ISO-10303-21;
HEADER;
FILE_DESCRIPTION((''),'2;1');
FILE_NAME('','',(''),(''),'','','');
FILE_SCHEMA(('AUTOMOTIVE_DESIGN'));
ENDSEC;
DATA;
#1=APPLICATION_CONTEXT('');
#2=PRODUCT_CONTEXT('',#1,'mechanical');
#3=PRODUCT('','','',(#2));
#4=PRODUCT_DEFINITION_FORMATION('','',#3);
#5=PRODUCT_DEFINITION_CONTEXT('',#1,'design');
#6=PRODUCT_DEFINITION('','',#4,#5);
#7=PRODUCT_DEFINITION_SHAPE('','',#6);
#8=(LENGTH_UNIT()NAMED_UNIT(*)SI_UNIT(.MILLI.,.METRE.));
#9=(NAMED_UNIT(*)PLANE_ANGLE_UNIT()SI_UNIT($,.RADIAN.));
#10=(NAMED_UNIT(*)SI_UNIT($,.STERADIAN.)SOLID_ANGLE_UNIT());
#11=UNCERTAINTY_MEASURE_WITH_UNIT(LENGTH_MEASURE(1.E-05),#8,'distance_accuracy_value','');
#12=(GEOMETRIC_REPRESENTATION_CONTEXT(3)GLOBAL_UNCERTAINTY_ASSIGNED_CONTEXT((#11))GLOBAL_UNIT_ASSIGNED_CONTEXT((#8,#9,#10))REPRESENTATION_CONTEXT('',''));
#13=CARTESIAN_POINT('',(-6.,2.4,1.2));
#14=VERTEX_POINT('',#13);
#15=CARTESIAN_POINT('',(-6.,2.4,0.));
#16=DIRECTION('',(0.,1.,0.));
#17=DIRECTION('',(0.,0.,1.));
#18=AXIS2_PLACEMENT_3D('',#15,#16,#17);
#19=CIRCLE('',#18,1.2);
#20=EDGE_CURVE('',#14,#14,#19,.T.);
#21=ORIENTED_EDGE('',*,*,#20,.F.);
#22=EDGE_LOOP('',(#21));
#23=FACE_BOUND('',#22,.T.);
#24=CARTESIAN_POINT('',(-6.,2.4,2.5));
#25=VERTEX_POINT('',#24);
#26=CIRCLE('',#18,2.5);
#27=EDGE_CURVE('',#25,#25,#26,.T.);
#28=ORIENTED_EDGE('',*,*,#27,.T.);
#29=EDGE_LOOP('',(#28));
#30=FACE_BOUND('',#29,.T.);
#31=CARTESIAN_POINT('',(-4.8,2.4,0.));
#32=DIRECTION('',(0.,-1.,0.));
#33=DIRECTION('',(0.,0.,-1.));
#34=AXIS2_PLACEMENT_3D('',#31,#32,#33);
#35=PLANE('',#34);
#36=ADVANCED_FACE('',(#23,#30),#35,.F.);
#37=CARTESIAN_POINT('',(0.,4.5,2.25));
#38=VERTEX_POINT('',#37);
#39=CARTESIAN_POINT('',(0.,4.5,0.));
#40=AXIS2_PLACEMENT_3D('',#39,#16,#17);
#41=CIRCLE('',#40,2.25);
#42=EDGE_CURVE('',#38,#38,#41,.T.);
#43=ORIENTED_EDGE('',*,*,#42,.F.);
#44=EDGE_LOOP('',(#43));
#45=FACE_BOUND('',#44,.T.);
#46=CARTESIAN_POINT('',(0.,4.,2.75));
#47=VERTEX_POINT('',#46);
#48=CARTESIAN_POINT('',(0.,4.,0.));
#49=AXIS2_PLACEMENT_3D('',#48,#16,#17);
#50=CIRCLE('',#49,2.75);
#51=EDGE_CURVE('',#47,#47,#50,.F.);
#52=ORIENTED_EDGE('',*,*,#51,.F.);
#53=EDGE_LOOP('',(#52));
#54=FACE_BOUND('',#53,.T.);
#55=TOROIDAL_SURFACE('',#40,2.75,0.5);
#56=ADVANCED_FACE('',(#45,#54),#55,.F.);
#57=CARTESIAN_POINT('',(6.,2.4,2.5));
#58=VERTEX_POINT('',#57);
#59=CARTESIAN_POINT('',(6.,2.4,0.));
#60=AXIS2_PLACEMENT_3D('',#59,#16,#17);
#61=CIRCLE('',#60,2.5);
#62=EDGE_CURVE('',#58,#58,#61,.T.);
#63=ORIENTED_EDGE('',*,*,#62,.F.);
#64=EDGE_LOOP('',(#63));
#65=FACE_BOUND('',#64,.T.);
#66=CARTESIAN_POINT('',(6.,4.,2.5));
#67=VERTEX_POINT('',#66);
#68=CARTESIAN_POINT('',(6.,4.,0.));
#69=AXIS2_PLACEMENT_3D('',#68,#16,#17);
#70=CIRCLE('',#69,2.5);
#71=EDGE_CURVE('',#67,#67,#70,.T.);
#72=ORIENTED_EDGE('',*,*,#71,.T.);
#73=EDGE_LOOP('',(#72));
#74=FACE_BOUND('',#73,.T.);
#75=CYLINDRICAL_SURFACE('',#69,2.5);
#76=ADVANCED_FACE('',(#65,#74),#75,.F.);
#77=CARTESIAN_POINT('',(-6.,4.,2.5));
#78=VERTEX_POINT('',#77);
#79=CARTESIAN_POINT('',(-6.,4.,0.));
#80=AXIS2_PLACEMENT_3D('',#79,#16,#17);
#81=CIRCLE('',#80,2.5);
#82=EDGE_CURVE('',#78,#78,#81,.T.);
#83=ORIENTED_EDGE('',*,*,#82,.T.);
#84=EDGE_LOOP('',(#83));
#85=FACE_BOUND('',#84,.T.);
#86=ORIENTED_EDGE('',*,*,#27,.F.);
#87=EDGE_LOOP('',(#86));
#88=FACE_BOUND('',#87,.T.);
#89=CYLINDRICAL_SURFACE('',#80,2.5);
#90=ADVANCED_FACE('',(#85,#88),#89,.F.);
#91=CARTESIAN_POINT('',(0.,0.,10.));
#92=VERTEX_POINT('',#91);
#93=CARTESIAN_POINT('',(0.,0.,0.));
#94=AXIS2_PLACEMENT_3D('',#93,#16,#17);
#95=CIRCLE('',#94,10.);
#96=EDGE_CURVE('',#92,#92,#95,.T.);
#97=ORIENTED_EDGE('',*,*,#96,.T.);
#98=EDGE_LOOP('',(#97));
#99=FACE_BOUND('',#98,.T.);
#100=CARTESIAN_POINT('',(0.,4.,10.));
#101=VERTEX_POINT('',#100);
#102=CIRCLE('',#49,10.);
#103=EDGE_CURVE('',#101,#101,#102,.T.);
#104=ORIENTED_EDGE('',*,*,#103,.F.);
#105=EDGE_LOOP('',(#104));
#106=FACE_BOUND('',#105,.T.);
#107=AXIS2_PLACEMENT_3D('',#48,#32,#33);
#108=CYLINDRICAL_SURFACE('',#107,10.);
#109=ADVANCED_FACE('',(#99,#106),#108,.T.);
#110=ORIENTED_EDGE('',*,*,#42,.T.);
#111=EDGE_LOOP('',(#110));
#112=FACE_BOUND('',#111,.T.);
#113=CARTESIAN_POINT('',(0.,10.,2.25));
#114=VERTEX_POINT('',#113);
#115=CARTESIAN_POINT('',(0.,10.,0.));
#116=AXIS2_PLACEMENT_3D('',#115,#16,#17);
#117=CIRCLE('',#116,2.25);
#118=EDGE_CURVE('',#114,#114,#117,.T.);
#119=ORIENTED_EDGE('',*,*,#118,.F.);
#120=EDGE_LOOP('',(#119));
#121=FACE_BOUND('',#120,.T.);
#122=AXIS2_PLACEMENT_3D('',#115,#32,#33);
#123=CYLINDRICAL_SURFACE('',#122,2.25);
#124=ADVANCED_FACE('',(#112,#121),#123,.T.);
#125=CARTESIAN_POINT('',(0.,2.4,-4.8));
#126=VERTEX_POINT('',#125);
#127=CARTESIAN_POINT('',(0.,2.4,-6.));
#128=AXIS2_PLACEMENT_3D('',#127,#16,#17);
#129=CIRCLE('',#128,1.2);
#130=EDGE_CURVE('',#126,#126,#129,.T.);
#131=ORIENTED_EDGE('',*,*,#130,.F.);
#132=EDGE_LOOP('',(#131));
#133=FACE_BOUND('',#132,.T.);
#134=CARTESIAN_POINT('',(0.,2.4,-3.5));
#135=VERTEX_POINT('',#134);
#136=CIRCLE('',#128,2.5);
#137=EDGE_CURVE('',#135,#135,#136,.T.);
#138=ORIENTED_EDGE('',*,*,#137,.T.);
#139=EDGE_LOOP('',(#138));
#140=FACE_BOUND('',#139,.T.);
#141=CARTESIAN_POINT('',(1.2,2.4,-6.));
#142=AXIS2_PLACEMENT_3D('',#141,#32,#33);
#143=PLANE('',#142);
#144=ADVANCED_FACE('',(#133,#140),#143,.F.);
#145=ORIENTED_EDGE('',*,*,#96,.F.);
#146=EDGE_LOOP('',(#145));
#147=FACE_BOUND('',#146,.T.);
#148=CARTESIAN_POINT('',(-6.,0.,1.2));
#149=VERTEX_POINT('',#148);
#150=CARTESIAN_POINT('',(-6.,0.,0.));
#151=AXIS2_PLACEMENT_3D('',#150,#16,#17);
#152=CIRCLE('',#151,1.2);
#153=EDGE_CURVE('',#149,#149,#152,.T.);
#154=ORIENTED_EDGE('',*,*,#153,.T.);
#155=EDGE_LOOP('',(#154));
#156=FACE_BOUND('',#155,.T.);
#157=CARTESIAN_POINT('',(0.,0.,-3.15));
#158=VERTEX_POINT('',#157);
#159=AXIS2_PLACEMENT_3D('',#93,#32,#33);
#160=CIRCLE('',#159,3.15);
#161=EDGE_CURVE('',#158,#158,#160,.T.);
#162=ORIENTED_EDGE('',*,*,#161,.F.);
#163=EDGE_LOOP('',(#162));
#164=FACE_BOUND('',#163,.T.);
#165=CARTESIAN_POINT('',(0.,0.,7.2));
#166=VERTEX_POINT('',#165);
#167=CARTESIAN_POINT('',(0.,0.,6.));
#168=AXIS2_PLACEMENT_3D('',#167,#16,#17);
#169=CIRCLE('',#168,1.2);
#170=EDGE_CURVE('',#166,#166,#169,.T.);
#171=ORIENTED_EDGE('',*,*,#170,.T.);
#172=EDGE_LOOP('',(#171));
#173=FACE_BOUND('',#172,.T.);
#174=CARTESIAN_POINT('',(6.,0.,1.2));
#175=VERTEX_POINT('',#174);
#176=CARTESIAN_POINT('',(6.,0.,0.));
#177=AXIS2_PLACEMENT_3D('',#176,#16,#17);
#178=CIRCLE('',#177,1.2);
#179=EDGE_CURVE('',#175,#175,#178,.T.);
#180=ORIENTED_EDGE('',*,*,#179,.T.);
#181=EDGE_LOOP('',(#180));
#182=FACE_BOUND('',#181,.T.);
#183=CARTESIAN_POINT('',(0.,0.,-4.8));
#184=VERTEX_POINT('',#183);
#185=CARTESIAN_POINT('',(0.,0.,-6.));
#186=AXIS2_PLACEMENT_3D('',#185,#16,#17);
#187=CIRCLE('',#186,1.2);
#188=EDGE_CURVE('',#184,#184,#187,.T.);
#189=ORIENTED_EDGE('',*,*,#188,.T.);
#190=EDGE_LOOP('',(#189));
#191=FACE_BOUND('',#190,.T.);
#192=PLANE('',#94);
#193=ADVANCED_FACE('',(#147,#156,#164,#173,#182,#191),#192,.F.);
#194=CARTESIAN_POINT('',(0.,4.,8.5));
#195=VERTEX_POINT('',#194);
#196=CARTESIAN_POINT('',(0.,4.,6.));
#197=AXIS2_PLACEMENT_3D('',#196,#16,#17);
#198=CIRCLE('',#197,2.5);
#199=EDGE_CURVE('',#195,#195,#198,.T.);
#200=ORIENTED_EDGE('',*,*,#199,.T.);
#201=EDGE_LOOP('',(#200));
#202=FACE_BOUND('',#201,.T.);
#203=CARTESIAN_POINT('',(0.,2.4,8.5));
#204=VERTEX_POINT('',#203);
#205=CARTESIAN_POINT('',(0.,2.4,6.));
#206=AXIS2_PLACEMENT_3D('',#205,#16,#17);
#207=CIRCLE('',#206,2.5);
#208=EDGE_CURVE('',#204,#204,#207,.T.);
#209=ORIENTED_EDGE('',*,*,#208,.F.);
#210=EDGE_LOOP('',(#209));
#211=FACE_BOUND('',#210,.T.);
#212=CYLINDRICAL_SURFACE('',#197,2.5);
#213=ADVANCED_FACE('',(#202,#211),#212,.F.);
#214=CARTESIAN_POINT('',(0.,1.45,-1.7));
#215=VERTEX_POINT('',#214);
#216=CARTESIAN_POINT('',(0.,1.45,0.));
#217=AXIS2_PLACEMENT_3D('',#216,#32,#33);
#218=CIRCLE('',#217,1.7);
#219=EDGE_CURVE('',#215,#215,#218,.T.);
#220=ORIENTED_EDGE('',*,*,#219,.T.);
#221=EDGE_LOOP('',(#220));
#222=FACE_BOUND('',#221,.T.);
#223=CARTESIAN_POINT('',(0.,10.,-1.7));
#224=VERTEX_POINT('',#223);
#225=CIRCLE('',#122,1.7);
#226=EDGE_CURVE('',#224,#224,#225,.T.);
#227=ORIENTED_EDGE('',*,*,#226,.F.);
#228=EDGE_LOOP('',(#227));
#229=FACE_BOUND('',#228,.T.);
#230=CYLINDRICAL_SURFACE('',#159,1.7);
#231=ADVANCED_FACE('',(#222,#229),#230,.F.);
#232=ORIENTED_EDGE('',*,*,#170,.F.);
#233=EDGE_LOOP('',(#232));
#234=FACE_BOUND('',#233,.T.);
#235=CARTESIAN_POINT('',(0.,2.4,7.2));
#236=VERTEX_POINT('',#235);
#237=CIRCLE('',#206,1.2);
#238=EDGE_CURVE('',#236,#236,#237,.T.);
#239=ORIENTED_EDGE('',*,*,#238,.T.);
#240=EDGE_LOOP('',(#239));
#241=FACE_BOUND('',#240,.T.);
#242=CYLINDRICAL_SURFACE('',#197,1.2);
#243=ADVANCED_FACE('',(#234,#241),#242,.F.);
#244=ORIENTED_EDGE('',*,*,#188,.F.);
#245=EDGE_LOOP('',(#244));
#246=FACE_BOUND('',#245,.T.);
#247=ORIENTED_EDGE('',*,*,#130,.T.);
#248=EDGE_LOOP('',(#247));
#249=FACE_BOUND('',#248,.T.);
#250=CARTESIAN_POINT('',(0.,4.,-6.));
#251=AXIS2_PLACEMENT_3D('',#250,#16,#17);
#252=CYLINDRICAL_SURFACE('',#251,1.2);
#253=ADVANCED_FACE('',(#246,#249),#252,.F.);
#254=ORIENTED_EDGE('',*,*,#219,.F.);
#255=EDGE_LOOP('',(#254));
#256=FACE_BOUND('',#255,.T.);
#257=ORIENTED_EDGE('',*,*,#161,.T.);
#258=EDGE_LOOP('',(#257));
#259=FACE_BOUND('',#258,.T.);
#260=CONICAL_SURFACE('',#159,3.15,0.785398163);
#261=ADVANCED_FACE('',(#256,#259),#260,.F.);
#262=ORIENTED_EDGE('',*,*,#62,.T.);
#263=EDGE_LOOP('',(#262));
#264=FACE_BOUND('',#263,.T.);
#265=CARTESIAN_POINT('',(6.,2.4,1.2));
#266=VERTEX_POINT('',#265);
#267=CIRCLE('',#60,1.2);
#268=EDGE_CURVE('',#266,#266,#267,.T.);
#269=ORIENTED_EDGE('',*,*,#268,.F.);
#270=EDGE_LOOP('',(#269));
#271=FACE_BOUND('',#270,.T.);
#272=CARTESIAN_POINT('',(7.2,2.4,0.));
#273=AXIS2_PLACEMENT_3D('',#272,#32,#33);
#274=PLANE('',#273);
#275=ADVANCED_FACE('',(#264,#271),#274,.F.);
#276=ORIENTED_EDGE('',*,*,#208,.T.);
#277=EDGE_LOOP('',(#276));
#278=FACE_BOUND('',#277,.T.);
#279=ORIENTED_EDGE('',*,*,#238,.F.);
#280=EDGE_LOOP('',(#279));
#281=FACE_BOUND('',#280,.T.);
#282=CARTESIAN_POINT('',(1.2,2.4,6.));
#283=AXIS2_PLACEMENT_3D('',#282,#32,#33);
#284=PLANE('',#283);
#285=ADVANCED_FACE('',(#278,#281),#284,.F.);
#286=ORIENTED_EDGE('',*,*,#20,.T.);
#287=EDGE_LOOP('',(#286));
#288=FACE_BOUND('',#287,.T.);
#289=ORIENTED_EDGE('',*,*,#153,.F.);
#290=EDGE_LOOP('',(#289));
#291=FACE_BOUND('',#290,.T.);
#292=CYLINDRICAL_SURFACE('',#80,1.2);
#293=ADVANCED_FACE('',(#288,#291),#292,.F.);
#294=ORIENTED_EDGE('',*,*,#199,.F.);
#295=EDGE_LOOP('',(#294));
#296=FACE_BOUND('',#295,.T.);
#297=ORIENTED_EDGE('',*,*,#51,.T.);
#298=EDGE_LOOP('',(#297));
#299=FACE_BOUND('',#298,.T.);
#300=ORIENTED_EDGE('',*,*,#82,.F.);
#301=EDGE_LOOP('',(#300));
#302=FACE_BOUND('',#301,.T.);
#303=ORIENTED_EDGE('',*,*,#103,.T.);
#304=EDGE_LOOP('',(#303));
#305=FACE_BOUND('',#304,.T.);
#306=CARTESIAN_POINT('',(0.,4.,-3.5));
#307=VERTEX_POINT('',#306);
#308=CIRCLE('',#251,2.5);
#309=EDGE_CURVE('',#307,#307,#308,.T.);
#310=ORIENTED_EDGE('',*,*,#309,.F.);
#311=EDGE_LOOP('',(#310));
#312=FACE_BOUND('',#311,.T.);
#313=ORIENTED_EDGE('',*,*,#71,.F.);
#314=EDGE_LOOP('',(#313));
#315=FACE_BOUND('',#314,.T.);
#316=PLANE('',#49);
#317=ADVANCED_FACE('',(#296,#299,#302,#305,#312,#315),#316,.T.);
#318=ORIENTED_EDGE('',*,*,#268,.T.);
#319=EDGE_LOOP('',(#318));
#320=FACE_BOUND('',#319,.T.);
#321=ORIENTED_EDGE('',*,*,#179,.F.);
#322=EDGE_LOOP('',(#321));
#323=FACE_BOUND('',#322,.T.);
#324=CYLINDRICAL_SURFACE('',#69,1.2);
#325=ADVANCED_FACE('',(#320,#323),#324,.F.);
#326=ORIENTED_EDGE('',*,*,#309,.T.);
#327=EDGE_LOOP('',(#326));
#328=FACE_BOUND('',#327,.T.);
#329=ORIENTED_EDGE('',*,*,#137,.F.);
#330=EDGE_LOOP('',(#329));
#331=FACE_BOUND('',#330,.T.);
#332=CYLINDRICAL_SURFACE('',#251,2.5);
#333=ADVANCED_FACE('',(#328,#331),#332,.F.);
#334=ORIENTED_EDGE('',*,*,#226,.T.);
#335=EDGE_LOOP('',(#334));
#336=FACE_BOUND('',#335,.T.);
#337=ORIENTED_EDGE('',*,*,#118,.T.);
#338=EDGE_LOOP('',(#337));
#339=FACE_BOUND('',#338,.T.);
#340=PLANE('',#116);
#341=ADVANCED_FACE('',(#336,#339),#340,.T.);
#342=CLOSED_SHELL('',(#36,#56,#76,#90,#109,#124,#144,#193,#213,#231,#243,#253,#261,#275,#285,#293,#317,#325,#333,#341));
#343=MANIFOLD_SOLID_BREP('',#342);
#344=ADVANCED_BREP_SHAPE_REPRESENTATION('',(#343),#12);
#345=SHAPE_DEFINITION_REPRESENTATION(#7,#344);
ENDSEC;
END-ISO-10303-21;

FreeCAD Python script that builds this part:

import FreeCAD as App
import Part
import Sketcher
from FreeCAD import Vector
Q = App.Units.Quantity


def edges_at(feature, points):
    """Names of the edges that pass closest to the given points."""
    edges = feature.Shape.Edges
    near = lambda p: min(range(len(edges)), key=lambda i: edges[i].distToShape(Part.Vertex(*p))[0])
    return sorted({f"Edge{near(p) + 1}" for p in points})

doc = App.newDocument("Part")
body = doc.addObject("PartDesign::Body", "Body")

# Sketch on XZ plane
sketch1 = body.newObject("Sketcher::SketchObject", "Sketch")
sketch1.AttachmentSupport = (doc.getObject("XZ_Plane"), [""])
sketch1.MapMode = "FlatFace"
sketch1.addGeometry(Part.Circle(Vector(0, 0, 0), Vector(0, 0, 1), 10), False)
sketch1.addConstraint([
    Sketcher.Constraint("Coincident", 0, 3, -1, 1),
    Sketcher.Constraint("Diameter", 0, Q("20 mm")),
])
pad1 = body.newObject("PartDesign::Pad", "Pad")
pad1.Profile = sketch1
pad1.Length = 4
pad1.Reversed = True

# Sketch on XZ plane
sketch2 = body.newObject("Sketcher::SketchObject", "Sketch001")
sketch2.AttachmentSupport = (doc.getObject("XZ_Plane"), [""])
sketch2.MapMode = "FlatFace"
sketch2.AttachmentOffset = App.Placement(Vector(0, 0, -4), App.Rotation())
sketch2.addGeometry(Part.Circle(Vector(6, 0, 0), Vector(0, 0, 1), 1.2), False)
sketch2.addConstraint([
    Sketcher.Constraint("PointOnObject", 0, 3, -1),
    Sketcher.Constraint("Diameter", 0, Q("2.4 mm")),
    Sketcher.Constraint("DistanceX", -1, 1, 0, 3, Q("6 mm")),
])
doc.recompute()
hole = body.newObject("PartDesign::Hole", "Hole")
hole.Profile = sketch2
hole.ThreadType = "None"
hole.Diameter = 2.4
hole.DepthType = "ThroughAll"
hole.HoleCutType = "Counterbore"
hole.HoleCutDiameter = 5
hole.HoleCutDepth = 1.6
hole.Reversed = True

# Sketch on XZ plane
sketch3 = body.newObject("Sketcher::SketchObject", "Sketch002")
sketch3.AttachmentSupport = (doc.getObject("XZ_Plane"), [""])
sketch3.MapMode = "FlatFace"
sketch3.AttachmentOffset = App.Placement(Vector(0, 0, -4), App.Rotation())
sketch3.addGeometry(Part.Circle(Vector(0, 0, 0), Vector(0, 0, 1), 2.25), False)
sketch3.addConstraint([
    Sketcher.Constraint("Coincident", 0, 3, -1, 1),
    Sketcher.Constraint("Diameter", 0, Q("4.5 mm")),
])
pad2 = body.newObject("PartDesign::Pad", "Pad001")
pad2.Profile = sketch3
pad2.Length = 6
pad2.Reversed = True
doc.recompute()

polarpattern = body.newObject("PartDesign::PolarPattern", "PolarPattern")
polarpattern.Originals = [hole]
polarpattern.Axis = (doc.getObject("Y_Axis"), [""])
polarpattern.Angle = 360
polarpattern.Occurrences = 4
body.Tip = polarpattern

# Sketch on XZ plane
sketch4 = body.newObject("Sketcher::SketchObject", "Sketch003")
sketch4.AttachmentSupport = (doc.getObject("XZ_Plane"), [""])
sketch4.MapMode = "FlatFace"
sketch4.addGeometry(Part.Circle(Vector(0, 0, 0), Vector(0, 0, 1), 1.7), False)
sketch4.addConstraint([
    Sketcher.Constraint("Coincident", 0, 3, -1, 1),
    Sketcher.Constraint("Diameter", 0, Q("3.4 mm")),
])
doc.recompute()
hole2 = body.newObject("PartDesign::Hole", "Hole001")
hole2.Profile = sketch4
hole2.ThreadType = "None"
hole2.Diameter = 3.4
hole2.DepthType = "ThroughAll"
hole2.HoleCutType = "Countersink"
hole2.HoleCutDiameter = 6.3
hole2.HoleCutCountersinkAngle = 90
doc.recompute()

fillet = body.newObject("PartDesign::Fillet", "Fillet")
fillet.Base = (hole2, edges_at(hole2, [(0, 4, -2.25)]))
fillet.Radius = 0.5

doc.recompute()
